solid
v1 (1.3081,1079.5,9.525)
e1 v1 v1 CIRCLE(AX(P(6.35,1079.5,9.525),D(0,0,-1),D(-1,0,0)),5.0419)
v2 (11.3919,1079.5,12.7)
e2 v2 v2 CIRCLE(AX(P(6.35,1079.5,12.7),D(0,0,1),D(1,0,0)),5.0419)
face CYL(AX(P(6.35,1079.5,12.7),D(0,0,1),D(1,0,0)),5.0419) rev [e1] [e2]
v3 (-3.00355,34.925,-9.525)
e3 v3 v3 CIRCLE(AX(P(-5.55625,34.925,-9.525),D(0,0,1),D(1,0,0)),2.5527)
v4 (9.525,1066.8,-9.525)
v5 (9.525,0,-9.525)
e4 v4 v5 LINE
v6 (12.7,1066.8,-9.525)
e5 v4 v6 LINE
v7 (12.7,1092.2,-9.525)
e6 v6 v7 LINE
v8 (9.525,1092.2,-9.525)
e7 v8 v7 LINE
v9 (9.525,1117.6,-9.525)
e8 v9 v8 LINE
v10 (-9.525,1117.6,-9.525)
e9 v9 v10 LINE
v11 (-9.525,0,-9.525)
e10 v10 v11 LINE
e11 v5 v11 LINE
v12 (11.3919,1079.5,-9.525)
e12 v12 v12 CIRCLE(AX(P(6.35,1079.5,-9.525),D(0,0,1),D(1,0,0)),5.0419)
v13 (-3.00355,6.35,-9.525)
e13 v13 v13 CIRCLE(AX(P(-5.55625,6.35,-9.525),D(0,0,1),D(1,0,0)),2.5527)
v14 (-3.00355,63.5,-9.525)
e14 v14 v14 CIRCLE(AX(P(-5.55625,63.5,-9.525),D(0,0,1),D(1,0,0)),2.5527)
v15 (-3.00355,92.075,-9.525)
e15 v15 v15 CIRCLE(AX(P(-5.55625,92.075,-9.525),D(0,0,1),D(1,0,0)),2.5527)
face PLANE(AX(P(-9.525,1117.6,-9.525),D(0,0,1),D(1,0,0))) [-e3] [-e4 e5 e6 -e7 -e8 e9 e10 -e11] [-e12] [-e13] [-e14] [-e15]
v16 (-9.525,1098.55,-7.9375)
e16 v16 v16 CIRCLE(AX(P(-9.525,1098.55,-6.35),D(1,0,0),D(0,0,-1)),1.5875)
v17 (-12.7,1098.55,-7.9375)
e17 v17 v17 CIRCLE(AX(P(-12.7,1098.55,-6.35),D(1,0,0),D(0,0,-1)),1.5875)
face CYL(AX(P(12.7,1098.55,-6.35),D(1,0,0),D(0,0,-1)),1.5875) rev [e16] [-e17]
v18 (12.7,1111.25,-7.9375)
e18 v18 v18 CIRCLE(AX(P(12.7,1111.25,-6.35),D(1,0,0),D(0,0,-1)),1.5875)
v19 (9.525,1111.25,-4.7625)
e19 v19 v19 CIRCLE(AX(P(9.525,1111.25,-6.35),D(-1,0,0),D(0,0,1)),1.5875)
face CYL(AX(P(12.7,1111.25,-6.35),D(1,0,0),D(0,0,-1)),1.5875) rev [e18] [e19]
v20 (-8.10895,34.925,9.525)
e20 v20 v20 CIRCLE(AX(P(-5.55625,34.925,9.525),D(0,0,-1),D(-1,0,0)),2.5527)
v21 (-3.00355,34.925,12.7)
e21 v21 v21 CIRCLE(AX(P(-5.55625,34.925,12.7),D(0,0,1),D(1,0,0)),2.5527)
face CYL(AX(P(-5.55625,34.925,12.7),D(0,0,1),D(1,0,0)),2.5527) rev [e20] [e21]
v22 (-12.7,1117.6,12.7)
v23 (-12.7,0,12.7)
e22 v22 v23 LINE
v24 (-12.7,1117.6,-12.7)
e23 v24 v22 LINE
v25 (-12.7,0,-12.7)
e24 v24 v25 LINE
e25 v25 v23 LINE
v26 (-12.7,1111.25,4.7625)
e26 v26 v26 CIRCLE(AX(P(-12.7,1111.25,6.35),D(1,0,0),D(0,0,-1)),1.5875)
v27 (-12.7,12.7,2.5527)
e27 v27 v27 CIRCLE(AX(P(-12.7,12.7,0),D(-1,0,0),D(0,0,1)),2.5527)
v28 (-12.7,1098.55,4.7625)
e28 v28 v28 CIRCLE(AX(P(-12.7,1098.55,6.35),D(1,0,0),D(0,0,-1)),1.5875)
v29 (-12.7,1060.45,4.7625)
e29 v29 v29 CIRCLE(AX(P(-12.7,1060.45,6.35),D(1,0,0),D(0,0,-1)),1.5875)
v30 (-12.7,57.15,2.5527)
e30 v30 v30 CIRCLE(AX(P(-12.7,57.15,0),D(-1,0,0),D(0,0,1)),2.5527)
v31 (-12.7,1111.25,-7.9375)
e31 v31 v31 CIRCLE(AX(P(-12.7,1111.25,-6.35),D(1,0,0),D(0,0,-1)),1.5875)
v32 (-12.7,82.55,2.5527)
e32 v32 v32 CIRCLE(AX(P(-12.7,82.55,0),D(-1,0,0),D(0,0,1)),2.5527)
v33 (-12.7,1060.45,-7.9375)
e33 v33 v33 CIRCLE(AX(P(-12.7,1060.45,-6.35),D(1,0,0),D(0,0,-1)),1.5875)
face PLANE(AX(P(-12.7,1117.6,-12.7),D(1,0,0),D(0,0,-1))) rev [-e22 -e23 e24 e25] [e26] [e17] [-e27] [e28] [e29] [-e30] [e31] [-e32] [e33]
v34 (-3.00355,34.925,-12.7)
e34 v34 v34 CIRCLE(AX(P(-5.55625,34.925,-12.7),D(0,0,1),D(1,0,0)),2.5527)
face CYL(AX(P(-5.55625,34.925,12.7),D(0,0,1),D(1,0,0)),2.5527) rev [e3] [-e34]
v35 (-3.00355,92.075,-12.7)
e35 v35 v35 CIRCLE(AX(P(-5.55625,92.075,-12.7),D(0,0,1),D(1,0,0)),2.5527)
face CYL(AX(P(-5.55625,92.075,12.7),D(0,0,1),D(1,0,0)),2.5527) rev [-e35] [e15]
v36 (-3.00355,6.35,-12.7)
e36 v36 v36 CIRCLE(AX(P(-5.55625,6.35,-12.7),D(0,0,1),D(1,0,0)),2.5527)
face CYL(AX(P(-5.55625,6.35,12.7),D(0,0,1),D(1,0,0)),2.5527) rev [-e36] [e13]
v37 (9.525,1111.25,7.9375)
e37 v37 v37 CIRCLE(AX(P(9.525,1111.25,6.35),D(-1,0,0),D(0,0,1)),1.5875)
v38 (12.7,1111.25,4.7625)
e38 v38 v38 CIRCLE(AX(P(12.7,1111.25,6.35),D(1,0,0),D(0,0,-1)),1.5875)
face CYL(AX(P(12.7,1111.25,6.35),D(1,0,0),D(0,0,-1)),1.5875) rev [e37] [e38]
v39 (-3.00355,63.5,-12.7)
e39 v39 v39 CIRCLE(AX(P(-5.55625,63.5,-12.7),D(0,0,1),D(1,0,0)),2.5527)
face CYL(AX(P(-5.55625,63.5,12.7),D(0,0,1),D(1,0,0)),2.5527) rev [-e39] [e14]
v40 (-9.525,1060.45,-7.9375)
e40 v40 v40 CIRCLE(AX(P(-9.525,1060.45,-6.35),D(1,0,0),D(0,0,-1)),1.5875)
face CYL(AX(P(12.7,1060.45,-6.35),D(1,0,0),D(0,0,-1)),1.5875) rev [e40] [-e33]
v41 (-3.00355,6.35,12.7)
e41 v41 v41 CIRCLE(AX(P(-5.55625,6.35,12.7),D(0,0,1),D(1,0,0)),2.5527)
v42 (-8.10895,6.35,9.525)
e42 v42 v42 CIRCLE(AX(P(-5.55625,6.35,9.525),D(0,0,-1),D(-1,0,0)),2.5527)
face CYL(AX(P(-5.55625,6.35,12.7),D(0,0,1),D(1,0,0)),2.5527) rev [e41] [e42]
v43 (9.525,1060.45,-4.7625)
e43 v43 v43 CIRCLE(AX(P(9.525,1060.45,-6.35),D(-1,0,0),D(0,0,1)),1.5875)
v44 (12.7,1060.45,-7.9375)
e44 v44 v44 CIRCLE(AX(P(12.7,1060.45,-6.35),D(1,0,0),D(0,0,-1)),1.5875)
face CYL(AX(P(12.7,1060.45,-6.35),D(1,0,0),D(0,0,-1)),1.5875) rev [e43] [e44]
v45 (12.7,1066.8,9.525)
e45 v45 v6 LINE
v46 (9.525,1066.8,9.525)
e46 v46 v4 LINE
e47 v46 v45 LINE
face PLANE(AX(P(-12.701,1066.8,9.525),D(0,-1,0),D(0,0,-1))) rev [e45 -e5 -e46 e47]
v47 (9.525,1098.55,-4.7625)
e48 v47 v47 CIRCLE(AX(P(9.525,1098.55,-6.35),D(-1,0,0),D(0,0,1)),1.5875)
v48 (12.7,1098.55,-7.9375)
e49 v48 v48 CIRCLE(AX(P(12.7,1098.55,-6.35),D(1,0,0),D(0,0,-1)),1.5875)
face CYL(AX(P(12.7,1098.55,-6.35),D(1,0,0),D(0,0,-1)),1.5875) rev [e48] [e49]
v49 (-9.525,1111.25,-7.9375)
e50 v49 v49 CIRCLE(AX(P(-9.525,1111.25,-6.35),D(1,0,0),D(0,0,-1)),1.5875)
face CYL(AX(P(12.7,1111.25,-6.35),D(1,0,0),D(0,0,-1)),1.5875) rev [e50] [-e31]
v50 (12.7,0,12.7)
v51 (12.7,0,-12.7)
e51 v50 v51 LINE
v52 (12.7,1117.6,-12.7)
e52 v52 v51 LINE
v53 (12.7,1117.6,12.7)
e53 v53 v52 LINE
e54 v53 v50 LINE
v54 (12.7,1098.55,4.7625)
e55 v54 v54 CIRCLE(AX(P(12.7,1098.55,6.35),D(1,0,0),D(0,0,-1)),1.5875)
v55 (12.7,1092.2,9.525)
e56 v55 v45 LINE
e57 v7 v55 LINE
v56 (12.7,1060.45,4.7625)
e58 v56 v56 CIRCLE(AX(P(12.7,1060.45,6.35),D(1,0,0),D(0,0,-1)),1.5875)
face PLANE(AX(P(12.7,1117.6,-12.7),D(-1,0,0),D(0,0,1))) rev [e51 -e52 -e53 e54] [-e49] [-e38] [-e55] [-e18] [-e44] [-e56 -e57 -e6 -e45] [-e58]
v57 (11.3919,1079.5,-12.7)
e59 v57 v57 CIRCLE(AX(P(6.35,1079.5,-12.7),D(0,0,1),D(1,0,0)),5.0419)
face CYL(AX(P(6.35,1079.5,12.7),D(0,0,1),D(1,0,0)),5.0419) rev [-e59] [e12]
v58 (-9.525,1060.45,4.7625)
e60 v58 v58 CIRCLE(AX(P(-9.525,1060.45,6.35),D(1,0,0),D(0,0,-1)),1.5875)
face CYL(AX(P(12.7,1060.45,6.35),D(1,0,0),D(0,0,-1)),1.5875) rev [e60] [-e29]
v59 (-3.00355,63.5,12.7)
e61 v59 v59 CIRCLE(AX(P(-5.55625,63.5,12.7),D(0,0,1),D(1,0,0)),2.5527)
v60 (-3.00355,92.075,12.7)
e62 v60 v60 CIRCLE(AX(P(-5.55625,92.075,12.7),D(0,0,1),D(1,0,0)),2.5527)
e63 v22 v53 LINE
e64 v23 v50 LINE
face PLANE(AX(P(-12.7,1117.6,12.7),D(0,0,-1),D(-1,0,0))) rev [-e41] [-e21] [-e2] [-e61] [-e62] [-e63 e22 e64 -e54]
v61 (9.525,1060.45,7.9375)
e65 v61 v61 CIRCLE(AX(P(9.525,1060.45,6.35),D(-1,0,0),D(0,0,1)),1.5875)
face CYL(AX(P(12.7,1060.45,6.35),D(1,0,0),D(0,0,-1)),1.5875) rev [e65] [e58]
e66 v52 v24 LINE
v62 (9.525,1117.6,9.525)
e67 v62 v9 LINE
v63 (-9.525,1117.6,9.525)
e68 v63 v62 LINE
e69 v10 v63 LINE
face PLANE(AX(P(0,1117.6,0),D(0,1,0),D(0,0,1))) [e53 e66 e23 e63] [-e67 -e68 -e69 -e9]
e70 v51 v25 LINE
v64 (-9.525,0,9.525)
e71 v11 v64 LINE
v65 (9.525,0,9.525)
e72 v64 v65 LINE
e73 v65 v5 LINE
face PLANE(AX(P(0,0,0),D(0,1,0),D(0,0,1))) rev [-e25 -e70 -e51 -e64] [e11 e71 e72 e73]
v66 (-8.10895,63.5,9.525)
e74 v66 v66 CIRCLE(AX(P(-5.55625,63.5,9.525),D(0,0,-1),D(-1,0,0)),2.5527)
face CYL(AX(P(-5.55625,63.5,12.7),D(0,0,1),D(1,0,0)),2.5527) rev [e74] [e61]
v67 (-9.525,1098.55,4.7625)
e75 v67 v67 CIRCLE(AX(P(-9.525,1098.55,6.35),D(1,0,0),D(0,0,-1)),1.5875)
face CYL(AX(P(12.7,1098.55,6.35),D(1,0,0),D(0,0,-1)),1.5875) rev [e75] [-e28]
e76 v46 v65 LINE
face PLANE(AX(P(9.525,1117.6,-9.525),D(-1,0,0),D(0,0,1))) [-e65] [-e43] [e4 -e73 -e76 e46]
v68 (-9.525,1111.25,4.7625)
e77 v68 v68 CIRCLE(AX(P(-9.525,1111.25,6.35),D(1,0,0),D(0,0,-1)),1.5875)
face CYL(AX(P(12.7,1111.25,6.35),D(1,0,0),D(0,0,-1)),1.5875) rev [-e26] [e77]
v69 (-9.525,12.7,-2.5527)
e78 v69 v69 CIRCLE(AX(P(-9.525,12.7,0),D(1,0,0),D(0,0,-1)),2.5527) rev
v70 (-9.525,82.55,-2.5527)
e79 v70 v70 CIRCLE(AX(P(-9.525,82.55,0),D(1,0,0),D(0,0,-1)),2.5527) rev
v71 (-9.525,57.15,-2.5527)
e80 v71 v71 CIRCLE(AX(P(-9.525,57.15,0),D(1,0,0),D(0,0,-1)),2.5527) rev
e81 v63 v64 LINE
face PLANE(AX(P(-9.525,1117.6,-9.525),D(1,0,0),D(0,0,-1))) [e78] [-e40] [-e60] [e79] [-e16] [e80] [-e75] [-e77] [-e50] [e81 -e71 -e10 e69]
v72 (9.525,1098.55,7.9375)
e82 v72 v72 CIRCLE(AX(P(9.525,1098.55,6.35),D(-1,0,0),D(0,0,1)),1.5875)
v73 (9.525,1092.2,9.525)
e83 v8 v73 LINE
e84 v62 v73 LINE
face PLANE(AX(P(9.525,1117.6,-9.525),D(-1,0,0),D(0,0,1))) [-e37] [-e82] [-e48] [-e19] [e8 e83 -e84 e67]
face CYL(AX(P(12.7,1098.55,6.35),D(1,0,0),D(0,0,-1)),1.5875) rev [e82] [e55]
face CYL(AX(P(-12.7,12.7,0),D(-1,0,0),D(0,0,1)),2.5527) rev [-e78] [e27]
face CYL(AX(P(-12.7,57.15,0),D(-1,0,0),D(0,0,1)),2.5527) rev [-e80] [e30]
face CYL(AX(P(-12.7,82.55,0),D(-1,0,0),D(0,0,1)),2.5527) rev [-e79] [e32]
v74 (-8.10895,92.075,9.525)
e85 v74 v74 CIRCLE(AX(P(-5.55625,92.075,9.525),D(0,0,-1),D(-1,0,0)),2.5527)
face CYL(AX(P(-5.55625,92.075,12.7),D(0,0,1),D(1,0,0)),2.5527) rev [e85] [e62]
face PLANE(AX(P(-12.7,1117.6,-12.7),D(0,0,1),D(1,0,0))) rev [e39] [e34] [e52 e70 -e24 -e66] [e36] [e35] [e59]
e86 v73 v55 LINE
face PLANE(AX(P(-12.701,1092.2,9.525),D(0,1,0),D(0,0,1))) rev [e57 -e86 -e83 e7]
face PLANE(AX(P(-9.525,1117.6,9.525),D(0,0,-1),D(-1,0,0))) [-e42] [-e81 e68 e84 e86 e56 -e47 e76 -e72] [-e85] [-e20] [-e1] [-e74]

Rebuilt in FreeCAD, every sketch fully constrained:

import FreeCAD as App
import Part
import Sketcher
Q = App.Units.Quantity

doc = App.newDocument("Part")
body = doc.addObject("PartDesign::Body", "Body")

# Sketch on XZ plane
sketch1 = doc.addObject("Sketcher::SketchObject", "Sketch")
body.addObject(sketch1)
sketch1.AttachmentSupport = (doc.XZ_Plane, [""])
sketch1.MapMode = "FlatFace"
sketch1.addGeometry([
    Part.LineSegment(App.Vector(-13, -13, 0), App.Vector(-13, 13, 0)),  # 0
    Part.LineSegment(App.Vector(-13, 13, 0), App.Vector(13, 13, 0)),  # 1
    Part.LineSegment(App.Vector(13, 13, 0), App.Vector(13, -13, 0)),  # 2
    Part.LineSegment(App.Vector(13, -13, 0), App.Vector(-13, -13, 0)),  # 3
    Part.LineSegment(App.Vector(10, 10, 0), App.Vector(-10, 10, 0)),  # 4
    Part.LineSegment(App.Vector(-10, 10, 0), App.Vector(-10, -10, 0)),  # 5
    Part.LineSegment(App.Vector(-10, -10, 0), App.Vector(10, -10, 0)),  # 6
    Part.LineSegment(App.Vector(10, -10, 0), App.Vector(10, 10, 0)),  # 7
], False)
sketch1.addConstraint([
    Sketcher.Constraint("Coincident", 0, 2, 1, 1),
    Sketcher.Constraint("Coincident", 1, 2, 2, 1),
    Sketcher.Constraint("Coincident", 2, 2, 3, 1),
    Sketcher.Constraint("Coincident", 3, 2, 0, 1),
    Sketcher.Constraint("Coincident", 4, 2, 5, 1),
    Sketcher.Constraint("Coincident", 5, 2, 6, 1),
    Sketcher.Constraint("Coincident", 6, 2, 7, 1),
    Sketcher.Constraint("Coincident", 7, 2, 4, 1),
    Sketcher.Constraint("Vertical", 0),
    Sketcher.Constraint("Horizontal", 1),
    Sketcher.Constraint("Vertical", 2),
    Sketcher.Constraint("Horizontal", 3),
    Sketcher.Constraint("Horizontal", 4),
    Sketcher.Constraint("Vertical", 5),
    Sketcher.Constraint("Horizontal", 6),
    Sketcher.Constraint("Vertical", 7),
    Sketcher.Constraint("Symmetric", 0, 2, 2, 2, -1, 1),
    Sketcher.Constraint("Symmetric", 4, 2, 6, 2, -1, 1),
    Sketcher.Constraint("Equal", 3, 0),
    Sketcher.Constraint("Equal", 6, 5),
    Sketcher.Constraint("DistanceX", 1, 1, 1, 2, Q("1 in")),
    Sketcher.Constraint("DistanceX", 4, 2, 4, 1, Q("0.75 in")),
])
pad1 = doc.addObject("PartDesign::Pad", "Pad")
body.addObject(pad1)
pad1.Profile = sketch1
pad1.Length = Q("44 in")
pad1.Reversed = True

# Sketch on YZ plane
sketch2 = doc.addObject("Sketcher::SketchObject", "Sketch001")
body.addObject(sketch2)
sketch2.AttachmentSupport = (doc.YZ_Plane, [""])
sketch2.MapMode = "FlatFace"
sketch2.AttachmentOffset = App.Placement(App.Vector(0, 0, 0.5 * 25.4), App.Rotation())
sketch2.addGeometry([
    Part.LineSegment(App.Vector(1092, 10, 0), App.Vector(1067, 10, 0)),
    Part.LineSegment(App.Vector(1067, 10, 0), App.Vector(1067, -10, 0)),
    Part.LineSegment(App.Vector(1067, -10, 0), App.Vector(1092, -10, 0)),
    Part.LineSegment(App.Vector(1092, -10, 0), App.Vector(1092, 10, 0)),
], False)
sketch2.addConstraint([
    Sketcher.Constraint("Coincident", 0, 2, 1, 1),
    Sketcher.Constraint("Coincident", 1, 2, 2, 1),
    Sketcher.Constraint("Coincident", 2, 2, 3, 1),
    Sketcher.Constraint("Coincident", 3, 2, 0, 1),
    Sketcher.Constraint("Horizontal", 0),
    Sketcher.Constraint("Vertical", 1),
    Sketcher.Constraint("Horizontal", 2),
    Sketcher.Constraint("Vertical", 3),
    Sketcher.Constraint("DistanceX", 0, 2, 0, 1, Q("1 in")),
    Sketcher.Constraint("DistanceX", -1, 1, 0, 2, Q("42 in")),
    Sketcher.Constraint("DistanceY", 1, 2, 1, 1, Q("0.75 in")),
    Sketcher.Constraint("DistanceY", -1, 1, 0, 2, Q("0.375 in")),
])
pocket1 = doc.addObject("PartDesign::Pocket", "Pocket")
body.addObject(pocket1)
pocket1.Profile = sketch2
pocket1.Type = "UpToFirst"

# Sketch on XY plane
sketch3 = doc.addObject("Sketcher::SketchObject", "Sketch002")
body.addObject(sketch3)
sketch3.AttachmentSupport = (doc.XY_Plane, [""])
sketch3.MapMode = "FlatFace"
sketch3.AttachmentOffset = App.Placement(App.Vector(0, 0, 0.5 * 25.4), App.Rotation())
sketch3.addGeometry(Part.Circle(App.Vector(6, 1080, 0), App.Vector(0, 0, 1), 5), False)
sketch3.addConstraint([
    Sketcher.Constraint("Diameter", 0, Q("0.397 in")),
    Sketcher.Constraint("DistanceY", -1, 1, 0, 3, Q("42.5 in")),
    Sketcher.Constraint("DistanceX", -1, 1, 0, 3, Q("0.25 in")),
])
doc.recompute()
hole = doc.addObject("PartDesign::Hole", "Hole")
body.addObject(hole)
hole.Profile = sketch3
hole.ThreadType = "None"
hole.Diameter = Q("0.397 in")
hole.DepthType = "ThroughAll"

# Sketch on YZ plane
sketch4 = doc.addObject("Sketcher::SketchObject", "Sketch003")
body.addObject(sketch4)
sketch4.AttachmentSupport = (doc.YZ_Plane, [""])
sketch4.MapMode = "FlatFace"
sketch4.AttachmentOffset = App.Placement(App.Vector(0, 0, -0.5 * 25.4), App.Rotation())
sketch4.addGeometry(Part.Circle(App.Vector(82.5, 0, 0), App.Vector(0, 0, 1), 2.6), False)
sketch4.addConstraint([
    Sketcher.Constraint("PointOnObject", 0, 3, -1),
    Sketcher.Constraint("Diameter", 0, Q("0.201 in")),
    Sketcher.Constraint("DistanceX", -1, 1, 0, 3, Q("3.25 in")),
])
pocket2 = doc.addObject("PartDesign::Pocket", "Pocket001")
body.addObject(pocket2)
pocket2.Profile = sketch4
pocket2.Type = "UpToFirst"
pocket2.Reversed = True

# Sketch on YZ plane
sketch5 = doc.addObject("Sketcher::SketchObject", "Sketch004")
body.addObject(sketch5)
sketch5.AttachmentSupport = (doc.YZ_Plane, [""])
sketch5.MapMode = "FlatFace"
sketch5.AttachmentOffset = App.Placement(App.Vector(0, 0, -0.5 * 25.4), App.Rotation())
sketch5.addGeometry(Part.Circle(App.Vector(57.1, 0, 0), App.Vector(0, 0, 1), 2.6), False)
sketch5.addConstraint([
    Sketcher.Constraint("PointOnObject", 0, 3, -1),
    Sketcher.Constraint("Diameter", 0, Q("0.201 in")),
    Sketcher.Constraint("DistanceX", -1, 1, 0, 3, Q("2.25 in")),
])
pocket3 = doc.addObject("PartDesign::Pocket", "Pocket002")
body.addObject(pocket3)
pocket3.Profile = sketch5
pocket3.Type = "UpToFirst"
pocket3.Reversed = True

# Sketch on YZ plane
sketch6 = doc.addObject("Sketcher::SketchObject", "Sketch005")
body.addObject(sketch6)
sketch6.AttachmentSupport = (doc.YZ_Plane, [""])
sketch6.MapMode = "FlatFace"
sketch6.AttachmentOffset = App.Placement(App.Vector(0, 0, -0.5 * 25.4), App.Rotation())
sketch6.addGeometry(Part.Circle(App.Vector(12.7, 0, 0), App.Vector(0, 0, 1), 2.6), False)
sketch6.addConstraint([
    Sketcher.Constraint("PointOnObject", 0, 3, -1),
    Sketcher.Constraint("Diameter", 0, Q("0.201 in")),
    Sketcher.Constraint("DistanceX", -1, 1, 0, 3, Q("0.5 in")),
])
pocket4 = doc.addObject("PartDesign::Pocket", "Pocket003")
body.addObject(pocket4)
pocket4.Profile = sketch6
pocket4.Type = "UpToFirst"
pocket4.Reversed = True

# Sketch on YZ plane
sketch7 = doc.addObject("Sketcher::SketchObject", "Sketch006")
body.addObject(sketch7)
sketch7.AttachmentSupport = (doc.YZ_Plane, [""])
sketch7.MapMode = "FlatFace"
sketch7.AttachmentOffset = App.Placement(App.Vector(0, 0, 0.5 * 25.4), App.Rotation())
sketch7.addGeometry([
    Part.Circle(App.Vector(1060.5, -6.3, 0), App.Vector(0, 0, 1), 1.6),  # 0
    Part.Circle(App.Vector(1098.5, -6.3, 0), App.Vector(0, 0, 1), 1.6),  # 1
    Part.Circle(App.Vector(1111.2, 6.3, 0), App.Vector(0, 0, 1), 1.6),  # 2
    Part.Circle(App.Vector(1098.5, 6.3, 0), App.Vector(0, 0, 1), 1.6),  # 3
    Part.Circle(App.Vector(1111.2, -6.3, 0), App.Vector(0, 0, 1), 1.6),  # 4
    Part.Circle(App.Vector(1060.5, 6.3, 0), App.Vector(0, 0, 1), 1.6),  # 5
], False)
sketch7.addConstraint([
    Sketcher.Constraint("Equal", 0, 1),
    Sketcher.Constraint("Equal", 1, 2),
    Sketcher.Constraint("Equal", 2, 3),
    Sketcher.Constraint("Equal", 3, 4),
    Sketcher.Constraint("Equal", 4, 5),
    Sketcher.Constraint("Symmetric", 1, 3, 3, 3, -1),
    Sketcher.Constraint("Symmetric", 2, 3, 4, 3, -1),
    Sketcher.Constraint("Symmetric", 0, 3, 5, 3, -1),
    Sketcher.Constraint("Horizontal", 0, 3, 1, 3),
    Sketcher.Constraint("Horizontal", 2, 3, 3, 3),
    Sketcher.Constraint("Diameter", 0, Q("0.125 in")),
    Sketcher.Constraint("DistanceX", 0, 3, 2, 3, Q("2 in")),
    Sketcher.Constraint("DistanceX", 0, 3, 1, 3, Q("1.5 in")),
    Sketcher.Constraint("DistanceY", 1, 3, 2, 3, Q("0.5 in")),
    Sketcher.Constraint("DistanceX", -1, 1, 0, 3, Q("41.75 in")),
])
doc.recompute()
hole2 = doc.addObject("PartDesign::Hole", "Hole001")
body.addObject(hole2)
hole2.Profile = sketch7
hole2.ThreadType = "None"
hole2.Diameter = Q("0.125 in")
hole2.DepthType = "ThroughAll"

# Sketch on XY plane
sketch8 = doc.addObject("Sketcher::SketchObject", "Sketch007")
body.addObject(sketch8)
sketch8.AttachmentSupport = (doc.XY_Plane, [""])
sketch8.MapMode = "FlatFace"
sketch8.AttachmentOffset = App.Placement(App.Vector(0, 0, 0.5 * 25.4), App.Rotation())
sketch8.addGeometry([
    Part.Circle(App.Vector(112.9, 382.4, 0), App.Vector(0, 0, 1), 2.6),  # 0
    Part.Circle(App.Vector(-5.6, 6.3, 0), App.Vector(0, 0, 1), 2.6),  # 1
    Part.Circle(App.Vector(-5.6, 34.9, 0), App.Vector(0, 0, 1), 2.6),  # 2
    Part.Circle(App.Vector(-5.6, 92.1, 0), App.Vector(0, 0, 1), 2.6),  # 3
    Part.Circle(App.Vector(-5.6, 63.5, 0), App.Vector(0, 0, 1), 2.6),  # 4
], False)
sketch8.addConstraint([
    Sketcher.Constraint("Equal", 0, 1),
    Sketcher.Constraint("Equal", 1, 2),
    Sketcher.Constraint("Equal", 2, 3),
    Sketcher.Constraint("Equal", 3, 4),
    Sketcher.Constraint("Vertical", 1, 3, 2, 3),
    Sketcher.Constraint("Vertical", 2, 3, 3, 3),
    Sketcher.Constraint("Vertical", 3, 3, 4, 3),
    Sketcher.Constraint("Diameter", 0, Q("0.201 in")),
    Sketcher.Constraint("DistanceY", -1, 1, 4, 3, Q("2.5 in")),
    Sketcher.Constraint("DistanceY", -1, 1, 1, 3, Q("0.25 in")),
    Sketcher.Constraint("DistanceY", 2, 3, 3, 3, Q("2.25 in")),
    Sketcher.Constraint("DistanceX", 1, 3, -1, 1, Q("0.21875 in")),
    Sketcher.Constraint("DistanceY", -1, 1, 2, 3, Q("1.375 in")),
    Sketcher.Constraint("DistanceX", -1, 1, 0, 3, 112.944997),
    Sketcher.Constraint("DistanceY", -1, 1, 0, 3, 382.363477),
])
doc.recompute()
hole3 = doc.addObject("PartDesign::Hole", "Hole002")
body.addObject(hole3)
hole3.Profile = sketch8
hole3.ThreadType = "None"
hole3.Diameter = Q("0.201 in")
hole3.DepthType = "ThroughAll"

doc.recompute()
